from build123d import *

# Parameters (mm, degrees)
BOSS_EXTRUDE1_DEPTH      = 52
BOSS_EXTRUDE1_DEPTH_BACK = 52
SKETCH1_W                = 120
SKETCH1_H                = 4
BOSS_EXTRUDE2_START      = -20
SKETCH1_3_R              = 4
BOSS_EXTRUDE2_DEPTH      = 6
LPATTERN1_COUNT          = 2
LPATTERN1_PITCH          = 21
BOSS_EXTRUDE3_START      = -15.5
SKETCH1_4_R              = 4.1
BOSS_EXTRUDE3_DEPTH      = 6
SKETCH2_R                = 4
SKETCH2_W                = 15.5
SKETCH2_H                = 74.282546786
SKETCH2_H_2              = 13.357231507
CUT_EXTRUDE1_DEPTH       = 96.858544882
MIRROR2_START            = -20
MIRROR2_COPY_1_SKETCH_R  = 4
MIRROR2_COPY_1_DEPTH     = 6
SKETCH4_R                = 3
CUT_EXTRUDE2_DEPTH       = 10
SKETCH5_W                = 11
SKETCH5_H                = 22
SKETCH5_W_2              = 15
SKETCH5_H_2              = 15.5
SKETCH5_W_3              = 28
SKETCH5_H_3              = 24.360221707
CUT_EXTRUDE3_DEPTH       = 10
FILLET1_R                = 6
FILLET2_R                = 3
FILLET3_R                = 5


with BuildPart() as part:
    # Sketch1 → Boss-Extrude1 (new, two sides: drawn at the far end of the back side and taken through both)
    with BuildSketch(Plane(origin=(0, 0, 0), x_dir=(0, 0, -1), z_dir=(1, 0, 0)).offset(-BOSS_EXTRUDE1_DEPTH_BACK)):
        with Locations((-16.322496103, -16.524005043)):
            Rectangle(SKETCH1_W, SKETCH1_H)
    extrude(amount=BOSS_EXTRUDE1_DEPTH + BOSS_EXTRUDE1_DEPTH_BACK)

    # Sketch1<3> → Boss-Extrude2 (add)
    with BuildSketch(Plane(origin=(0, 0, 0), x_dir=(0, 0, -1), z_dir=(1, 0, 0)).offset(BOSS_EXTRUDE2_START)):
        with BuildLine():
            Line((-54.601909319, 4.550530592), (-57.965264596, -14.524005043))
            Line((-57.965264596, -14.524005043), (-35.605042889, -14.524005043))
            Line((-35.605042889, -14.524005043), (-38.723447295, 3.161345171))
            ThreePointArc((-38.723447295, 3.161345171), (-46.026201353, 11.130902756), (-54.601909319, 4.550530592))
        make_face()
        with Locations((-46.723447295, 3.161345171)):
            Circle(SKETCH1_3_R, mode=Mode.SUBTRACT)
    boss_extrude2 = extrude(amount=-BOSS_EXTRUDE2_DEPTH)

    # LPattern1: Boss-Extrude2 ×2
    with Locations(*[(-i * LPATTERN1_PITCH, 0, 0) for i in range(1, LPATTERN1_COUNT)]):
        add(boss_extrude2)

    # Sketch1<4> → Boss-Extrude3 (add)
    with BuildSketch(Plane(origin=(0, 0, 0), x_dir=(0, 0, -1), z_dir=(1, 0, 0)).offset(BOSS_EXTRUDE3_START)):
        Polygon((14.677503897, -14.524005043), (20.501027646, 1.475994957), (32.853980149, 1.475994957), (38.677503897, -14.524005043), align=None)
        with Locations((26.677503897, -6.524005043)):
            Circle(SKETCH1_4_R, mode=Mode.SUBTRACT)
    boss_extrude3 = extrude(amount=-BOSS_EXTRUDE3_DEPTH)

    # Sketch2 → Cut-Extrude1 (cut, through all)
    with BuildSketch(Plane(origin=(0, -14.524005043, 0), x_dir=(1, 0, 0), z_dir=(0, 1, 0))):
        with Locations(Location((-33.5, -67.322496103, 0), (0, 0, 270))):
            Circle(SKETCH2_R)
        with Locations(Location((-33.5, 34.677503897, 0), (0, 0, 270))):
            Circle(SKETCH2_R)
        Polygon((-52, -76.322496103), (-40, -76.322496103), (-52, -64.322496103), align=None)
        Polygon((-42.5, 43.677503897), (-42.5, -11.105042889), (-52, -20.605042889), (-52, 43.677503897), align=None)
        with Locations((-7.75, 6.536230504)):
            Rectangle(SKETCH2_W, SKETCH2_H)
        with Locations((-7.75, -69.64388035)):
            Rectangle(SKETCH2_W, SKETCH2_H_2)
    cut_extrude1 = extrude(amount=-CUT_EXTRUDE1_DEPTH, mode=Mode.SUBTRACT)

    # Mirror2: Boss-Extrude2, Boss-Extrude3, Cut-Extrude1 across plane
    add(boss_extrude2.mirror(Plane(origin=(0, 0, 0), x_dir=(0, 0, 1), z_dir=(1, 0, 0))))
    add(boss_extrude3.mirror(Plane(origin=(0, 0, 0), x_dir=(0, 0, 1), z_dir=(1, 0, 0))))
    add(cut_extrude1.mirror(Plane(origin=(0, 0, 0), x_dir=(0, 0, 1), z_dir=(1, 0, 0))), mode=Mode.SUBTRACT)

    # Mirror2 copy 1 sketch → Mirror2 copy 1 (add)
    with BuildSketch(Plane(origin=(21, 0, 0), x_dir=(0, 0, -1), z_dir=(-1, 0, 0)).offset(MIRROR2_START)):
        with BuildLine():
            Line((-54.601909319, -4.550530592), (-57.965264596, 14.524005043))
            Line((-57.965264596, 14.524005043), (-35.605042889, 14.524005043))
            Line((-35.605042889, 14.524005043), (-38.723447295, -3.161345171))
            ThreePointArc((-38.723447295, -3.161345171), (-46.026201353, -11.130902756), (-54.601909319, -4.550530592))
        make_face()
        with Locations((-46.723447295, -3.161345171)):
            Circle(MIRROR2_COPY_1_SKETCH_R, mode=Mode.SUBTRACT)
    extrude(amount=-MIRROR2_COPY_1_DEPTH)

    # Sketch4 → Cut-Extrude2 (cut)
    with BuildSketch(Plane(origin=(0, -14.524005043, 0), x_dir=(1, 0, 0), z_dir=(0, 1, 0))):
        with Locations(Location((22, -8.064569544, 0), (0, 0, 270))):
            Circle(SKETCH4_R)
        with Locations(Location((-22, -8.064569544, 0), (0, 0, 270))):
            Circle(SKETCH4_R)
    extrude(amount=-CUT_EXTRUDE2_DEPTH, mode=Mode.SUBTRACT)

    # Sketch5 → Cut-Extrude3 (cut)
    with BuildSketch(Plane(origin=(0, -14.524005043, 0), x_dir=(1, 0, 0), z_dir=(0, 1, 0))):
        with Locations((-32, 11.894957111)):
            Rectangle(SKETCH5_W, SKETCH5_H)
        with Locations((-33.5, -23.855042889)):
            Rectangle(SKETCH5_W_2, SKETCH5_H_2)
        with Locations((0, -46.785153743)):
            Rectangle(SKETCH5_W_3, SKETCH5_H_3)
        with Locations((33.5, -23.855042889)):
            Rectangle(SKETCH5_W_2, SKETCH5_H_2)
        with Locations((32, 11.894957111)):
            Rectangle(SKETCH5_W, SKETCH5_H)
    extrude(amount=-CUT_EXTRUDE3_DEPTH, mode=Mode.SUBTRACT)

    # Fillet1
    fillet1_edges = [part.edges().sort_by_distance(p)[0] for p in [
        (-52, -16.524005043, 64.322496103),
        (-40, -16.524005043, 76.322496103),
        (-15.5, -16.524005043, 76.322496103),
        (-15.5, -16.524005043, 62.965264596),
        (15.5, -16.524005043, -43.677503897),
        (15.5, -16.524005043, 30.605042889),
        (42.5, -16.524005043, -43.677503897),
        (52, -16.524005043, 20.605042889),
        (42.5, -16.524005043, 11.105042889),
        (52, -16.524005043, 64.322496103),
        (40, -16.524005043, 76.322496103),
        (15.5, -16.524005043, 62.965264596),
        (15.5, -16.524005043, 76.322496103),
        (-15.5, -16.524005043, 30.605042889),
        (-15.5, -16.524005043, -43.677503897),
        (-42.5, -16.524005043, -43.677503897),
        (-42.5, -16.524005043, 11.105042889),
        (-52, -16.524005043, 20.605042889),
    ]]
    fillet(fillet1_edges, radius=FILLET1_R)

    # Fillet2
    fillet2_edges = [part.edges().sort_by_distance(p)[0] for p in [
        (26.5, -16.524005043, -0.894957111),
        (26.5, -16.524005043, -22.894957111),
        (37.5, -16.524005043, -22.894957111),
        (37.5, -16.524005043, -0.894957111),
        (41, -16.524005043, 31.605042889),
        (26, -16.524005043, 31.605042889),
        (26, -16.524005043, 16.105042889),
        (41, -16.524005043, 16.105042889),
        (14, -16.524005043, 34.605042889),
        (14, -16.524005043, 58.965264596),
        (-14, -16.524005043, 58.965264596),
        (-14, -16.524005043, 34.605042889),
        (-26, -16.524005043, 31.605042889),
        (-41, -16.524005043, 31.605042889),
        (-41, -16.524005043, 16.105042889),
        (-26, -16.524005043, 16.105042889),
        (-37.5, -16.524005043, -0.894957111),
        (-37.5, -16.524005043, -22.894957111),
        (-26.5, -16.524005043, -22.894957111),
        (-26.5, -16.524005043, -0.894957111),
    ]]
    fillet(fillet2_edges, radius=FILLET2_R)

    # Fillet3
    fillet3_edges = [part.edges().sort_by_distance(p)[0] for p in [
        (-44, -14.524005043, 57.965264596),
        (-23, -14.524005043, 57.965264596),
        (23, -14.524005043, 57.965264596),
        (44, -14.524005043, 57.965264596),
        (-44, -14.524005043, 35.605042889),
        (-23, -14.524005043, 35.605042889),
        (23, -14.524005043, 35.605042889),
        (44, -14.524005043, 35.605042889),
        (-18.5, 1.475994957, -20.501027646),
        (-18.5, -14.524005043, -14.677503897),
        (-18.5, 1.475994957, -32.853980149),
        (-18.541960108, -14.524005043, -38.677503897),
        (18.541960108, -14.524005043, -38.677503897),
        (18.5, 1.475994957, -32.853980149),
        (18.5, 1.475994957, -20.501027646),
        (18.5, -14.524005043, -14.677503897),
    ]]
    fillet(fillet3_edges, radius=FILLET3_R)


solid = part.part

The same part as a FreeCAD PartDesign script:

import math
import FreeCAD as App
import Part
import Sketcher

V = App.Vector
Q = App.Units.Quantity


def edges_at(feature, points):
    """Names of the edges that pass closest to the given points."""
    edges = feature.Shape.Edges
    near = lambda p: min(range(len(edges)), key=lambda i: edges[i].distToShape(Part.Vertex(*p))[0])
    return sorted({f"Edge{near(p) + 1}" for p in points})

doc = App.newDocument("Part")
params = doc.addObject("Spreadsheet::Sheet", "Params")
for row, (alias, value) in enumerate([
    ("sketch1_width", "4 mm"),
    ("sketch1_height", "120 mm"),
    ("pad1_length", "52 mm"),
    ("pad1_length2", "52 mm"),
    ("sketch2_diameter", "8 mm"),
    ("sketch2_radius", "8 mm"),
    ("pad2_length", "6 mm"),
    ("linearpattern_pitch", "21 mm"),
    ("sketch3_diameter", "8.2 mm"),
    ("sketch3_height", "24 mm"),
    ("pad3_length", "6 mm"),
    ("sketch4_diameter", "8 mm"),
    ("sketch4_width", "12 mm"),
    ("sketch4_width2", "9.5 mm"),
    ("sketch4_width3", "15.5 mm"),
    ("sketch5_diameter", "8 mm"),
    ("sketch5_radius", "8 mm"),
    ("pad4_length", "6 mm"),
    ("sketch6_diameter", "6 mm"),
    ("pocket2_length", "10 mm"),
    ("sketch7_width", "11 mm"),
    ("sketch7_width2", "15 mm"),
    ("sketch7_width3", "28 mm"),
    ("sketch7_height", "22 mm"),
    ("sketch7_height2", "15.5 mm"),
    ("pocket3_length", "10 mm"),
    ("fillet_radius", "6 mm"),
    ("fillet2_radius", "3 mm"),
    ("fillet3_radius", "5 mm"),
], start=1):
    params.set(f"A{row}", alias)
    params.set(f"B{row}", "=" + value)
    params.setAlias(f"B{row}", alias)

body = doc.addObject("PartDesign::Body", "Body")

# Sketch on YZ plane
sketch1 = body.newObject("Sketcher::SketchObject", "Sketch")
sketch1.AttachmentSupport = (doc.getObject("YZ_Plane"), [""])
sketch1.MapMode = "FlatFace"
sketch1.addGeometry([
    Part.LineSegment(V(-14.5, 76.3, 0), V(-18.5, 76.3, 0)),
    Part.LineSegment(V(-18.5, 76.3, 0), V(-18.5, -43.7, 0)),
    Part.LineSegment(V(-18.5, -43.7, 0), V(-14.5, -43.7, 0)),
    Part.LineSegment(V(-14.5, -43.7, 0), V(-14.5, 76.3, 0)),
], False)
sketch1.addConstraint([
    Sketcher.Constraint("Coincident", 0, 2, 1, 1),
    Sketcher.Constraint("Coincident", 1, 2, 2, 1),
    Sketcher.Constraint("Coincident", 2, 2, 3, 1),
    Sketcher.Constraint("Coincident", 3, 2, 0, 1),
    Sketcher.Constraint("Horizontal", 0),
    Sketcher.Constraint("Vertical", 1),
    Sketcher.Constraint("Horizontal", 2),
    Sketcher.Constraint("Vertical", 3),
    Sketcher.Constraint("DistanceX", 0, 2, 0, 1, Q("4 mm")),
    Sketcher.Constraint("DistanceY", 1, 2, 1, 1, Q("120 mm")),
    Sketcher.Constraint("DistanceX", 0, 2, -1, 1, Q("18.524005 mm")),
    Sketcher.Constraint("DistanceY", -1, 1, 0, 2, Q("76.322496 mm")),
])
sketch1.setExpression("Constraints[8]", "Params.sketch1_width")
sketch1.setExpression("Constraints[9]", "Params.sketch1_height")
pad1 = body.newObject("PartDesign::Pad", "Pad")
pad1.Profile = sketch1
pad1.Type = "TwoLengths"
pad1.setExpression("Length", "Params.pad1_length")
pad1.setExpression("Length2", "Params.pad1_length2")

# Sketch on YZ plane
sketch2 = body.newObject("Sketcher::SketchObject", "Sketch001")
sketch2.AttachmentSupport = (doc.getObject("YZ_Plane"), [""])
sketch2.MapMode = "FlatFace"
sketch2.AttachmentOffset = App.Placement(V(0, 0, -20), App.Rotation())
sketch2.addGeometry([
    Part.LineSegment(V(4.6, 54.6, 0), V(-14.5, 58, 0)),  # 0
    Part.LineSegment(V(-14.5, 58, 0), V(-14.5, 35.6, 0)),  # 1
    Part.LineSegment(V(-14.5, 35.6, 0), V(3.2, 38.7, 0)),  # 2
    Part.ArcOfCircle(Part.Circle(V(3.2, 46.7, 0), V(0, 0, 1), 8), math.radians(-90), math.radians(80)),  # 3
    Part.Circle(V(3.2, 46.7, 0), V(0, 0, 1), 4),  # 4
], False)
sketch2.addConstraint([
    Sketcher.Constraint("Coincident", 0, 2, 1, 1),
    Sketcher.Constraint("Coincident", 1, 2, 2, 1),
    Sketcher.Constraint("Coincident", 2, 2, 3, 1),
    Sketcher.Constraint("Tangent", 3, 2, 0, 1),
    Sketcher.Constraint("Vertical", 1),
    Sketcher.Constraint("Coincident", 4, 3, 3, 3),
    Sketcher.Constraint("Vertical", 4, 3, 2, 2),
    Sketcher.Constraint("Diameter", 4, Q("8 mm")),
    Sketcher.Constraint("Radius", 3, Q("8 mm")),
    Sketcher.Constraint("Angle", 0, Q("170 deg")),
    Sketcher.Constraint("Angle", 2, Q("10 deg")),
    Sketcher.Constraint("DistanceY", 1, 2, 1, 1, Q("22.360222 mm")),
    Sketcher.Constraint("DistanceX", -1, 1, 3, 2, Q("4.550531 mm")),
    Sketcher.Constraint("DistanceY", -1, 1, 3, 2, Q("54.601909 mm")),
])
sketch2.setExpression("Constraints[7]", "Params.sketch2_diameter")
sketch2.setExpression("Constraints[8]", "Params.sketch2_radius")
pad2 = body.newObject("PartDesign::Pad", "Pad001")
pad2.Profile = sketch2
pad2.setExpression("Length", "Params.pad2_length")
pad2.Reversed = True
doc.recompute()

linearpattern = body.newObject("PartDesign::LinearPattern", "LinearPattern")
linearpattern.Originals = [pad2]
linearpattern.Direction = (doc.getObject("X_Axis"), [""])
linearpattern.Mode = "offset"
linearpattern.setExpression("Offset", "Params.linearpattern_pitch")
linearpattern.Occurrences = 2
linearpattern.Reversed = True
body.Tip = linearpattern

# Sketch on YZ plane
sketch3 = body.newObject("Sketcher::SketchObject", "Sketch002")
sketch3.AttachmentSupport = (doc.getObject("YZ_Plane"), [""])
sketch3.MapMode = "FlatFace"
sketch3.AttachmentOffset = App.Placement(V(0, 0, -15.5), App.Rotation())
sketch3.addGeometry([
    Part.LineSegment(V(1.5, -20.5, 0), V(-14.5, -14.7, 0)),  # 0
    Part.LineSegment(V(-14.5, -14.7, 0), V(-14.5, -38.7, 0)),  # 1
    Part.LineSegment(V(-14.5, -38.7, 0), V(1.5, -32.9, 0)),  # 2
    Part.LineSegment(V(1.5, -32.9, 0), V(1.5, -20.5, 0)),  # 3
    Part.Circle(V(-6.5, -26.7, 0), V(0, 0, 1), 4.1),  # 4
], False)
sketch3.addConstraint([
    Sketcher.Constraint("Coincident", 0, 2, 1, 1),
    Sketcher.Constraint("Coincident", 1, 2, 2, 1),
    Sketcher.Constraint("Coincident", 2, 2, 3, 1),
    Sketcher.Constraint("Coincident", 3, 2, 0, 1),
    Sketcher.Constraint("Vertical", 1),
    Sketcher.Constraint("Vertical", 3),
    Sketcher.Constraint("Equal", 0, 2),
    Sketcher.Constraint("Diameter", 4, Q("8.2 mm")),
    Sketcher.Constraint("DistanceY", 1, 2, 1, 1, Q("24 mm")),
    Sketcher.Constraint("Angle", 0, Q("160 deg")),
    Sketcher.Constraint("DistanceX", 0, 2, 4, 3, Q("8 mm")),
    Sketcher.Constraint("DistanceY", 4, 3, 0, 2, Q("12 mm")),
    Sketcher.Constraint("DistanceX", 4, 3, 2, 2, Q("8 mm")),
    Sketcher.Constraint("DistanceY", 2, 2, -1, 1, Q("32.85398 mm")),
    Sketcher.Constraint("DistanceX", 4, 3, -1, 1, Q("6.524005 mm")),
])
sketch3.setExpression("Constraints[7]", "Params.sketch3_diameter")
sketch3.setExpression("Constraints[8]", "Params.sketch3_height")
pad3 = body.newObject("PartDesign::Pad", "Pad002")
pad3.Profile = sketch3
pad3.setExpression("Length", "Params.pad3_length")
pad3.Reversed = True

# Sketch on XZ plane
sketch4 = body.newObject("Sketcher::SketchObject", "Sketch003")
sketch4.AttachmentSupport = (doc.getObject("XZ_Plane"), [""])
sketch4.MapMode = "FlatFace"
sketch4.AttachmentOffset = App.Placement(V(0, 0, 14.524005), App.Rotation())
sketch4.addGeometry([
    Part.Circle(V(-33.5, 67.3, 0), V(0, 0, 1), 4),  # 0
    Part.Circle(V(-33.5, -34.7, 0), V(0, 0, 1), 4),  # 1
    Part.LineSegment(V(-52, 76.3, 0), V(-40, 76.3, 0)),  # 2
    Part.LineSegment(V(-40, 76.3, 0), V(-52, 64.3, 0)),  # 3
    Part.LineSegment(V(-52, 64.3, 0), V(-52, 76.3, 0)),  # 4
    Part.LineSegment(V(-42.5, 11.1, 0), V(-42.5, -43.7, 0)),  # 5
    Part.LineSegment(V(-42.5, -43.7, 0), V(-52, -43.7, 0)),  # 6
    Part.LineSegment(V(-52, -43.7, 0), V(-52, 20.6, 0)),  # 7
    Part.LineSegment(V(-52, 20.6, 0), V(-42.5, 11.1, 0)),  # 8
    Part.LineSegment(V(-15.5, -43.7, 0), V(-15.5, 30.6, 0)),  # 9
    Part.LineSegment(V(-15.5, 30.6, 0), V(0, 30.6, 0)),  # 10
    Part.LineSegment(V(0, 30.6, 0), V(0, -43.7, 0)),  # 11
    Part.LineSegment(V(0, -43.7, 0), V(-15.5, -43.7, 0)),  # 12
    Part.LineSegment(V(-15.5, 63, 0), V(-15.5, 76.3, 0)),  # 13
    Part.LineSegment(V(-15.5, 76.3, 0), V(0, 76.3, 0)),  # 14
    Part.LineSegment(V(0, 76.3, 0), V(0, 63, 0)),  # 15
    Part.LineSegment(V(0, 63, 0), V(-15.5, 63, 0)),  # 16
], False)
sketch4.addConstraint([
    Sketcher.Constraint("Coincident", 2, 2, 3, 1),
    Sketcher.Constraint("Coincident", 3, 2, 4, 1),
    Sketcher.Constraint("Coincident", 4, 2, 2, 1),
    Sketcher.Constraint("Coincident", 5, 2, 6, 1),
    Sketcher.Constraint("Coincident", 6, 2, 7, 1),
    Sketcher.Constraint("Coincident", 7, 2, 8, 1),
    Sketcher.Constraint("Coincident", 8, 2, 5, 1),
    Sketcher.Constraint("Coincident", 9, 2, 10, 1),
    Sketcher.Constraint("Coincident", 10, 2, 11, 1),
    Sketcher.Constraint("Coincident", 11, 2, 12, 1),
    Sketcher.Constraint("Coincident", 12, 2, 9, 1),
    Sketcher.Constraint("Coincident", 13, 2, 14, 1),
    Sketcher.Constraint("Coincident", 14, 2, 15, 1),
    Sketcher.Constraint("Coincident", 15, 2, 16, 1),
    Sketcher.Constraint("Coincident", 16, 2, 13, 1),
    Sketcher.Constraint("Horizontal", 2),
    Sketcher.Constraint("Vertical", 4),
    Sketcher.Constraint("Vertical", 5),
    Sketcher.Constraint("Horizontal", 6),
    Sketcher.Constraint("Vertical", 7),
    Sketcher.Constraint("Vertical", 9),
    Sketcher.Constraint("Horizontal", 10),
    Sketcher.Constraint("Vertical", 11),
    Sketcher.Constraint("Horizontal", 12),
    Sketcher.Constraint("Vertical", 13),
    Sketcher.Constraint("Horizontal", 14),
    Sketcher.Constraint("Vertical", 15),
    Sketcher.Constraint("Horizontal", 16),
    Sketcher.Constraint("Equal", 0, 1),
    Sketcher.Constraint("PointOnObject", 10, 2, -2),
    Sketcher.Constraint("PointOnObject", 14, 2, -2),
    Sketcher.Constraint("Perpendicular", 3, 8),
    Sketcher.Constraint("Horizontal", 6, 2, 11, 2),
    Sketcher.Constraint("Horizontal", 4, 2, 13, 2),
    Sketcher.Constraint("Vertical", 0, 3, 1, 3),
    Sketcher.Constraint("Vertical", 4, 2, 6, 2),
    Sketcher.Constraint("Vertical", 12, 2, 13, 2),
    Sketcher.Constraint("Equal", 2, 4),
    Sketcher.Constraint("Diameter", 0, Q("8 mm")),
    Sketcher.Constraint("DistanceX", 2, 1, 2, 2, Q("12 mm")),
    Sketcher.Constraint("DistanceX", 6, 2, 6, 1, Q("9.5 mm")),
    Sketcher.Constraint("DistanceX", 10, 1, 10, 2, Q("15.5 mm")),
    Sketcher.Constraint("DistanceX", 2, 2, -1, 1, Q("40 mm")),
    Sketcher.Constraint("DistanceY", 1, 3, 0, 3, Q("102 mm")),
    Sketcher.Constraint("DistanceY", 0, 3, 2, 2, Q("9 mm")),
    Sketcher.Constraint("DistanceX", 5, 2, 1, 3, Q("9 mm")),
    Sketcher.Constraint("DistanceY", 5, 2, 1, 3, Q("9 mm")),
    Sketcher.Constraint("DistanceY", 7, 2, 9, 2, Q("10 mm")),
    Sketcher.Constraint("DistanceY", 13, 1, 13, 2, Q("13.357232 mm")),
    Sketcher.Constraint("DistanceY", 5, 2, 5, 1, Q("54.782547 mm")),
    Sketcher.Constraint("DistanceY", -1, 1, 0, 3, Q("67.322496 mm")),
])
sketch4.setExpression("Constraints[38]", "Params.sketch4_diameter")
sketch4.setExpression("Constraints[39]", "Params.sketch4_width")
sketch4.setExpression("Constraints[40]", "Params.sketch4_width2")
sketch4.setExpression("Constraints[41]", "Params.sketch4_width3")
pocket1 = body.newObject("PartDesign::Pocket", "Pocket")
pocket1.Profile = sketch4
pocket1.Type = "ThroughAll"
pocket1.Reversed = True
doc.recompute()

mirrored = body.newObject("PartDesign::Mirrored", "Mirrored")
mirrored.Originals = [pad2, pad3, pocket1]
mirrored.MirrorPlane = (doc.getObject("YZ_Plane"), [""])
body.Tip = mirrored

# Sketch on YZ plane
sketch5 = body.newObject("Sketcher::SketchObject", "Sketch004")
sketch5.AttachmentSupport = (doc.getObject("YZ_Plane"), [""])
sketch5.MapMode = "FlatFace"
sketch5.AttachmentOffset = App.Placement(V(0, 0, 41), App.Rotation())
sketch5.addGeometry([
    Part.LineSegment(V(-14.5, 58, 0), V(4.6, 54.6, 0)),  # 0
    Part.ArcOfCircle(Part.Circle(V(3.2, 46.7, 0), V(0, 0, 1), 8), math.radians(-90), math.radians(80)),  # 1
    Part.LineSegment(V(3.2, 38.7, 0), V(-14.5, 35.6, 0)),  # 2
    Part.LineSegment(V(-14.5, 35.6, 0), V(-14.5, 58, 0)),  # 3
    Part.Circle(V(3.2, 46.7, 0), V(0, 0, 1), 4),  # 4
], False)
sketch5.addConstraint([
    Sketcher.Constraint("Tangent", 0, 2, 1, 2),
    Sketcher.Constraint("Coincident", 1, 1, 2, 1),
    Sketcher.Constraint("Coincident", 2, 2, 3, 1),
    Sketcher.Constraint("Coincident", 3, 2, 0, 1),
    Sketcher.Constraint("Vertical", 3),
    Sketcher.Constraint("Coincident", 4, 3, 1, 3),
    Sketcher.Constraint("Vertical", 4, 3, 1, 1),
    Sketcher.Constraint("Diameter", 4, Q("8 mm")),
    Sketcher.Constraint("Radius", 1, Q("8 mm")),
    Sketcher.Constraint("Angle", 0, Q("-10 deg")),
    Sketcher.Constraint("Angle", 2, Q("-170 deg")),
    Sketcher.Constraint("DistanceY", 3, 1, 3, 2, Q("22.360222 mm")),
    Sketcher.Constraint("DistanceX", -1, 1, 0, 2, Q("4.550531 mm")),
    Sketcher.Constraint("DistanceY", -1, 1, 0, 2, Q("54.601909 mm")),
])
sketch5.setExpression("Constraints[7]", "Params.sketch5_diameter")
sketch5.setExpression("Constraints[8]", "Params.sketch5_radius")
pad4 = body.newObject("PartDesign::Pad", "Pad003")
pad4.Profile = sketch5
pad4.setExpression("Length", "Params.pad4_length")

# Sketch on XZ plane
sketch6 = body.newObject("Sketcher::SketchObject", "Sketch005")
sketch6.AttachmentSupport = (doc.getObject("XZ_Plane"), [""])
sketch6.MapMode = "FlatFace"
sketch6.AttachmentOffset = App.Placement(V(0, 0, 14.524005), App.Rotation())
sketch6.addGeometry([
    Part.Circle(V(22, 8.1, 0), V(0, 0, 1), 3),
    Part.Circle(V(-22, 8.1, 0), V(0, 0, 1), 3),
], False)
sketch6.addConstraint([
    Sketcher.Constraint("Equal", 0, 1),
    Sketcher.Constraint("Symmetric", 0, 3, 1, 3, -2),
    Sketcher.Constraint("Diameter", 0, Q("6 mm")),
    Sketcher.Constraint("DistanceX", -1, 1, 0, 3, Q("22 mm")),
    Sketcher.Constraint("DistanceY", -1, 1, 0, 3, Q("8.06457 mm")),
])
sketch6.setExpression("Constraints[2]", "Params.sketch6_diameter")
pocket2 = body.newObject("PartDesign::Pocket", "Pocket001")
pocket2.Profile = sketch6
pocket2.setExpression("Length", "Params.pocket2_length")
pocket2.Reversed = True

# Sketch on XZ plane
sketch7 = body.newObject("Sketcher::SketchObject", "Sketch006")
sketch7.AttachmentSupport = (doc.getObject("XZ_Plane"), [""])
sketch7.MapMode = "FlatFace"
sketch7.AttachmentOffset = App.Placement(V(0, 0, 14.524005), App.Rotation())
sketch7.addGeometry([
    Part.LineSegment(V(-38, -23, 0), V(-38, -1, 0)),  # 0
    Part.LineSegment(V(-38, -1, 0), V(-26, -1, 0)),  # 1
    Part.LineSegment(V(-26, -1, 0), V(-26, -23, 0)),  # 2
    Part.LineSegment(V(-26, -23, 0), V(-38, -23, 0)),  # 3
    Part.LineSegment(V(-41, 16, 0), V(-41, 32, 0)),  # 4
    Part.LineSegment(V(-41, 32, 0), V(-26, 32, 0)),  # 5
    Part.LineSegment(V(-26, 32, 0), V(-26, 16, 0)),  # 6
    Part.LineSegment(V(-26, 16, 0), V(-41, 16, 0)),  # 7
    Part.LineSegment(V(-14, 35, 0), V(-14, 59, 0)),  # 8
    Part.LineSegment(V(-14, 59, 0), V(14, 59, 0)),  # 9
    Part.LineSegment(V(14, 59, 0), V(14, 35, 0)),  # 10
    Part.LineSegment(V(14, 35, 0), V(-14, 35, 0)),  # 11
    Part.LineSegment(V(26, 16, 0), V(26, 32, 0)),  # 12
    Part.LineSegment(V(26, 32, 0), V(41, 32, 0)),  # 13
    Part.LineSegment(V(41, 32, 0), V(41, 16, 0)),  # 14
    Part.LineSegment(V(41, 16, 0), V(26, 16, 0)),  # 15
    Part.LineSegment(V(26, -23, 0), V(26, -1, 0)),  # 16
    Part.LineSegment(V(26, -1, 0), V(38, -1, 0)),  # 17
    Part.LineSegment(V(38, -1, 0), V(38, -23, 0)),  # 18
    Part.LineSegment(V(38, -23, 0), V(26, -23, 0)),  # 19
], False)
sketch7.addConstraint([
    Sketcher.Constraint("Coincident", 0, 2, 1, 1),
    Sketcher.Constraint("Coincident", 1, 2, 2, 1),
    Sketcher.Constraint("Coincident", 2, 2, 3, 1),
    Sketcher.Constraint("Coincident", 3, 2, 0, 1),
    Sketcher.Constraint("Coincident", 4, 2, 5, 1),
    Sketcher.Constraint("Coincident", 5, 2, 6, 1),
    Sketcher.Constraint("Coincident", 6, 2, 7, 1),
    Sketcher.Constraint("Coincident", 7, 2, 4, 1),
    Sketcher.Constraint("Coincident", 8, 2, 9, 1),
    Sketcher.Constraint("Coincident", 9, 2, 10, 1),
    Sketcher.Constraint("Coincident", 10, 2, 11, 1),
    Sketcher.Constraint("Coincident", 11, 2, 8, 1),
    Sketcher.Constraint("Coincident", 12, 2, 13, 1),
    Sketcher.Constraint("Coincident", 13, 2, 14, 1),
    Sketcher.Constraint("Coincident", 14, 2, 15, 1),
    Sketcher.Constraint("Coincident", 15, 2, 12, 1),
    Sketcher.Constraint("Coincident", 16, 2, 17, 1),
    Sketcher.Constraint("Coincident", 17, 2, 18, 1),
    Sketcher.Constraint("Coincident", 18, 2, 19, 1),
    Sketcher.Constraint("Coincident", 19, 2, 16, 1),
    Sketcher.Constraint("Vertical", 0),
    Sketcher.Constraint("Horizontal", 1),
    Sketcher.Constraint("Vertical", 2),
    Sketcher.Constraint("Horizontal", 3),
    Sketcher.Constraint("Vertical", 4),
    Sketcher.Constraint("Horizontal", 5),
    Sketcher.Constraint("Vertical", 6),
    Sketcher.Constraint("Horizontal", 7),
    Sketcher.Constraint("Vertical", 8),
    Sketcher.Constraint("Horizontal", 9),
    Sketcher.Constraint("Vertical", 10),
    Sketcher.Constraint("Horizontal", 11),
    Sketcher.Constraint("Vertical", 12),
    Sketcher.Constraint("Horizontal", 13),
    Sketcher.Constraint("Vertical", 14),
    Sketcher.Constraint("Horizontal", 15),
    Sketcher.Constraint("Vertical", 16),
    Sketcher.Constraint("Horizontal", 17),
    Sketcher.Constraint("Vertical", 18),
    Sketcher.Constraint("Horizontal", 19),
    Sketcher.Constraint("Symmetric", 5, 2, 12, 2, -2),
    Sketcher.Constraint("Symmetric", 7, 2, 14, 2, -2),
    Sketcher.Constraint("Symmetric", 1, 2, 16, 2, -2),
    Sketcher.Constraint("Symmetric", 3, 2, 18, 2, -2),
    Sketcher.Constraint("DistanceX", 1, 1, 1, 2, Q("11 mm")),
    Sketcher.Constraint("DistanceX", 5, 1, 5, 2, Q("15 mm")),
    Sketcher.Constraint("DistanceX", 9, 1, 9, 2, Q("28 mm")),
    Sketcher.Constraint("DistanceY", 0, 1, 0, 2, Q("22 mm")),
    Sketcher.Constraint("DistanceY", 4, 1, 4, 2, Q("15.5 mm")),
    Sketcher.Constraint("DistanceX", 4, 2, -1, 1, Q("41 mm")),
    Sketcher.Constraint("DistanceX", 8, 2, -1, 1, Q("14 mm")),
    Sketcher.Constraint("DistanceY", 1, 2, 6, 2, Q("17 mm")),
    Sketcher.Constraint("DistanceY", 5, 2, 10, 2, Q("3 mm")),
    Sketcher.Constraint("DistanceX", 0, 2, -1, 1, Q("37.5 mm")),
    Sketcher.Constraint("DistanceY", 8, 1, 8, 2, Q("24.360222 mm")),
    Sketcher.Constraint("DistanceY", 0, 2, -1, 1, Q("0.894957 mm")),
])
sketch7.setExpression("Constraints[44]", "Params.sketch7_width")
sketch7.setExpression("Constraints[45]", "Params.sketch7_width2")
sketch7.setExpression("Constraints[46]", "Params.sketch7_width3")
sketch7.setExpression("Constraints[47]", "Params.sketch7_height")
sketch7.setExpression("Constraints[48]", "Params.sketch7_height2")
pocket3 = body.newObject("PartDesign::Pocket", "Pocket002")
pocket3.Profile = sketch7
pocket3.setExpression("Length", "Params.pocket3_length")
pocket3.Reversed = True
doc.recompute()

fillet = body.newObject("PartDesign::Fillet", "Fillet")
fillet.Base = (pocket3, edges_at(pocket3, [
    (-52, -16.524, 64.322),
    (-40, -16.524, 76.322),
    (-15.5, -16.524, 76.322),
    (-15.5, -16.524, 62.965),
    (15.5, -16.524, -43.678),
    (15.5, -16.524, 30.605),
    (42.5, -16.524, -43.678),
    (52, -16.524, 20.605),
    (42.5, -16.524, 11.105),
    (52, -16.524, 64.322),
    (40, -16.524, 76.322),
    (15.5, -16.524, 62.965),
    (15.5, -16.524, 76.322),
    (-15.5, -16.524, 30.605),
    (-15.5, -16.524, -43.678),
    (-42.5, -16.524, -43.678),
    (-42.5, -16.524, 11.105),
    (-52, -16.524, 20.605),
]))
fillet.setExpression("Radius", "Params.fillet_radius")
doc.recompute()

fillet2 = body.newObject("PartDesign::Fillet", "Fillet001")
fillet2.Base = (fillet, edges_at(fillet, [
    (26.5, -16.524, -0.895),
    (26.5, -16.524, -22.895),
    (37.5, -16.524, -22.895),
    (37.5, -16.524, -0.895),
    (41, -16.524, 31.605),
    (26, -16.524, 31.605),
    (26, -16.524, 16.105),
    (41, -16.524, 16.105),
    (14, -16.524, 34.605),
    (14, -16.524, 58.965),
    (-14, -16.524, 58.965),
    (-14, -16.524, 34.605),
    (-26, -16.524, 31.605),
    (-41, -16.524, 31.605),
    (-41, -16.524, 16.105),
    (-26, -16.524, 16.105),
    (-37.5, -16.524, -0.895),
    (-37.5, -16.524, -22.895),
    (-26.5, -16.524, -22.895),
    (-26.5, -16.524, -0.895),
]))
fillet2.setExpression("Radius", "Params.fillet2_radius")
doc.recompute()

fillet3 = body.newObject("PartDesign::Fillet", "Fillet002")
fillet3.Base = (fillet2, edges_at(fillet2, [
    (-44, -14.524, 57.965),
    (-23, -14.524, 57.965),
    (23, -14.524, 57.965),
    (44, -14.524, 57.965),
    (-44, -14.524, 35.605),
    (-23, -14.524, 35.605),
    (23, -14.524, 35.605),
    (44, -14.524, 35.605),
    (-18.5, 1.476, -20.501),
    (-18.5, -14.524, -14.678),
    (-18.5, 1.476, -32.854),
    (-18.542, -14.524, -38.678),
    (18.542, -14.524, -38.678),
    (18.5, 1.476, -32.854),
    (18.5, 1.476, -20.501),
    (18.5, -14.524, -14.678),
]))
fillet3.setExpression("Radius", "Params.fillet3_radius")

doc.recompute()
